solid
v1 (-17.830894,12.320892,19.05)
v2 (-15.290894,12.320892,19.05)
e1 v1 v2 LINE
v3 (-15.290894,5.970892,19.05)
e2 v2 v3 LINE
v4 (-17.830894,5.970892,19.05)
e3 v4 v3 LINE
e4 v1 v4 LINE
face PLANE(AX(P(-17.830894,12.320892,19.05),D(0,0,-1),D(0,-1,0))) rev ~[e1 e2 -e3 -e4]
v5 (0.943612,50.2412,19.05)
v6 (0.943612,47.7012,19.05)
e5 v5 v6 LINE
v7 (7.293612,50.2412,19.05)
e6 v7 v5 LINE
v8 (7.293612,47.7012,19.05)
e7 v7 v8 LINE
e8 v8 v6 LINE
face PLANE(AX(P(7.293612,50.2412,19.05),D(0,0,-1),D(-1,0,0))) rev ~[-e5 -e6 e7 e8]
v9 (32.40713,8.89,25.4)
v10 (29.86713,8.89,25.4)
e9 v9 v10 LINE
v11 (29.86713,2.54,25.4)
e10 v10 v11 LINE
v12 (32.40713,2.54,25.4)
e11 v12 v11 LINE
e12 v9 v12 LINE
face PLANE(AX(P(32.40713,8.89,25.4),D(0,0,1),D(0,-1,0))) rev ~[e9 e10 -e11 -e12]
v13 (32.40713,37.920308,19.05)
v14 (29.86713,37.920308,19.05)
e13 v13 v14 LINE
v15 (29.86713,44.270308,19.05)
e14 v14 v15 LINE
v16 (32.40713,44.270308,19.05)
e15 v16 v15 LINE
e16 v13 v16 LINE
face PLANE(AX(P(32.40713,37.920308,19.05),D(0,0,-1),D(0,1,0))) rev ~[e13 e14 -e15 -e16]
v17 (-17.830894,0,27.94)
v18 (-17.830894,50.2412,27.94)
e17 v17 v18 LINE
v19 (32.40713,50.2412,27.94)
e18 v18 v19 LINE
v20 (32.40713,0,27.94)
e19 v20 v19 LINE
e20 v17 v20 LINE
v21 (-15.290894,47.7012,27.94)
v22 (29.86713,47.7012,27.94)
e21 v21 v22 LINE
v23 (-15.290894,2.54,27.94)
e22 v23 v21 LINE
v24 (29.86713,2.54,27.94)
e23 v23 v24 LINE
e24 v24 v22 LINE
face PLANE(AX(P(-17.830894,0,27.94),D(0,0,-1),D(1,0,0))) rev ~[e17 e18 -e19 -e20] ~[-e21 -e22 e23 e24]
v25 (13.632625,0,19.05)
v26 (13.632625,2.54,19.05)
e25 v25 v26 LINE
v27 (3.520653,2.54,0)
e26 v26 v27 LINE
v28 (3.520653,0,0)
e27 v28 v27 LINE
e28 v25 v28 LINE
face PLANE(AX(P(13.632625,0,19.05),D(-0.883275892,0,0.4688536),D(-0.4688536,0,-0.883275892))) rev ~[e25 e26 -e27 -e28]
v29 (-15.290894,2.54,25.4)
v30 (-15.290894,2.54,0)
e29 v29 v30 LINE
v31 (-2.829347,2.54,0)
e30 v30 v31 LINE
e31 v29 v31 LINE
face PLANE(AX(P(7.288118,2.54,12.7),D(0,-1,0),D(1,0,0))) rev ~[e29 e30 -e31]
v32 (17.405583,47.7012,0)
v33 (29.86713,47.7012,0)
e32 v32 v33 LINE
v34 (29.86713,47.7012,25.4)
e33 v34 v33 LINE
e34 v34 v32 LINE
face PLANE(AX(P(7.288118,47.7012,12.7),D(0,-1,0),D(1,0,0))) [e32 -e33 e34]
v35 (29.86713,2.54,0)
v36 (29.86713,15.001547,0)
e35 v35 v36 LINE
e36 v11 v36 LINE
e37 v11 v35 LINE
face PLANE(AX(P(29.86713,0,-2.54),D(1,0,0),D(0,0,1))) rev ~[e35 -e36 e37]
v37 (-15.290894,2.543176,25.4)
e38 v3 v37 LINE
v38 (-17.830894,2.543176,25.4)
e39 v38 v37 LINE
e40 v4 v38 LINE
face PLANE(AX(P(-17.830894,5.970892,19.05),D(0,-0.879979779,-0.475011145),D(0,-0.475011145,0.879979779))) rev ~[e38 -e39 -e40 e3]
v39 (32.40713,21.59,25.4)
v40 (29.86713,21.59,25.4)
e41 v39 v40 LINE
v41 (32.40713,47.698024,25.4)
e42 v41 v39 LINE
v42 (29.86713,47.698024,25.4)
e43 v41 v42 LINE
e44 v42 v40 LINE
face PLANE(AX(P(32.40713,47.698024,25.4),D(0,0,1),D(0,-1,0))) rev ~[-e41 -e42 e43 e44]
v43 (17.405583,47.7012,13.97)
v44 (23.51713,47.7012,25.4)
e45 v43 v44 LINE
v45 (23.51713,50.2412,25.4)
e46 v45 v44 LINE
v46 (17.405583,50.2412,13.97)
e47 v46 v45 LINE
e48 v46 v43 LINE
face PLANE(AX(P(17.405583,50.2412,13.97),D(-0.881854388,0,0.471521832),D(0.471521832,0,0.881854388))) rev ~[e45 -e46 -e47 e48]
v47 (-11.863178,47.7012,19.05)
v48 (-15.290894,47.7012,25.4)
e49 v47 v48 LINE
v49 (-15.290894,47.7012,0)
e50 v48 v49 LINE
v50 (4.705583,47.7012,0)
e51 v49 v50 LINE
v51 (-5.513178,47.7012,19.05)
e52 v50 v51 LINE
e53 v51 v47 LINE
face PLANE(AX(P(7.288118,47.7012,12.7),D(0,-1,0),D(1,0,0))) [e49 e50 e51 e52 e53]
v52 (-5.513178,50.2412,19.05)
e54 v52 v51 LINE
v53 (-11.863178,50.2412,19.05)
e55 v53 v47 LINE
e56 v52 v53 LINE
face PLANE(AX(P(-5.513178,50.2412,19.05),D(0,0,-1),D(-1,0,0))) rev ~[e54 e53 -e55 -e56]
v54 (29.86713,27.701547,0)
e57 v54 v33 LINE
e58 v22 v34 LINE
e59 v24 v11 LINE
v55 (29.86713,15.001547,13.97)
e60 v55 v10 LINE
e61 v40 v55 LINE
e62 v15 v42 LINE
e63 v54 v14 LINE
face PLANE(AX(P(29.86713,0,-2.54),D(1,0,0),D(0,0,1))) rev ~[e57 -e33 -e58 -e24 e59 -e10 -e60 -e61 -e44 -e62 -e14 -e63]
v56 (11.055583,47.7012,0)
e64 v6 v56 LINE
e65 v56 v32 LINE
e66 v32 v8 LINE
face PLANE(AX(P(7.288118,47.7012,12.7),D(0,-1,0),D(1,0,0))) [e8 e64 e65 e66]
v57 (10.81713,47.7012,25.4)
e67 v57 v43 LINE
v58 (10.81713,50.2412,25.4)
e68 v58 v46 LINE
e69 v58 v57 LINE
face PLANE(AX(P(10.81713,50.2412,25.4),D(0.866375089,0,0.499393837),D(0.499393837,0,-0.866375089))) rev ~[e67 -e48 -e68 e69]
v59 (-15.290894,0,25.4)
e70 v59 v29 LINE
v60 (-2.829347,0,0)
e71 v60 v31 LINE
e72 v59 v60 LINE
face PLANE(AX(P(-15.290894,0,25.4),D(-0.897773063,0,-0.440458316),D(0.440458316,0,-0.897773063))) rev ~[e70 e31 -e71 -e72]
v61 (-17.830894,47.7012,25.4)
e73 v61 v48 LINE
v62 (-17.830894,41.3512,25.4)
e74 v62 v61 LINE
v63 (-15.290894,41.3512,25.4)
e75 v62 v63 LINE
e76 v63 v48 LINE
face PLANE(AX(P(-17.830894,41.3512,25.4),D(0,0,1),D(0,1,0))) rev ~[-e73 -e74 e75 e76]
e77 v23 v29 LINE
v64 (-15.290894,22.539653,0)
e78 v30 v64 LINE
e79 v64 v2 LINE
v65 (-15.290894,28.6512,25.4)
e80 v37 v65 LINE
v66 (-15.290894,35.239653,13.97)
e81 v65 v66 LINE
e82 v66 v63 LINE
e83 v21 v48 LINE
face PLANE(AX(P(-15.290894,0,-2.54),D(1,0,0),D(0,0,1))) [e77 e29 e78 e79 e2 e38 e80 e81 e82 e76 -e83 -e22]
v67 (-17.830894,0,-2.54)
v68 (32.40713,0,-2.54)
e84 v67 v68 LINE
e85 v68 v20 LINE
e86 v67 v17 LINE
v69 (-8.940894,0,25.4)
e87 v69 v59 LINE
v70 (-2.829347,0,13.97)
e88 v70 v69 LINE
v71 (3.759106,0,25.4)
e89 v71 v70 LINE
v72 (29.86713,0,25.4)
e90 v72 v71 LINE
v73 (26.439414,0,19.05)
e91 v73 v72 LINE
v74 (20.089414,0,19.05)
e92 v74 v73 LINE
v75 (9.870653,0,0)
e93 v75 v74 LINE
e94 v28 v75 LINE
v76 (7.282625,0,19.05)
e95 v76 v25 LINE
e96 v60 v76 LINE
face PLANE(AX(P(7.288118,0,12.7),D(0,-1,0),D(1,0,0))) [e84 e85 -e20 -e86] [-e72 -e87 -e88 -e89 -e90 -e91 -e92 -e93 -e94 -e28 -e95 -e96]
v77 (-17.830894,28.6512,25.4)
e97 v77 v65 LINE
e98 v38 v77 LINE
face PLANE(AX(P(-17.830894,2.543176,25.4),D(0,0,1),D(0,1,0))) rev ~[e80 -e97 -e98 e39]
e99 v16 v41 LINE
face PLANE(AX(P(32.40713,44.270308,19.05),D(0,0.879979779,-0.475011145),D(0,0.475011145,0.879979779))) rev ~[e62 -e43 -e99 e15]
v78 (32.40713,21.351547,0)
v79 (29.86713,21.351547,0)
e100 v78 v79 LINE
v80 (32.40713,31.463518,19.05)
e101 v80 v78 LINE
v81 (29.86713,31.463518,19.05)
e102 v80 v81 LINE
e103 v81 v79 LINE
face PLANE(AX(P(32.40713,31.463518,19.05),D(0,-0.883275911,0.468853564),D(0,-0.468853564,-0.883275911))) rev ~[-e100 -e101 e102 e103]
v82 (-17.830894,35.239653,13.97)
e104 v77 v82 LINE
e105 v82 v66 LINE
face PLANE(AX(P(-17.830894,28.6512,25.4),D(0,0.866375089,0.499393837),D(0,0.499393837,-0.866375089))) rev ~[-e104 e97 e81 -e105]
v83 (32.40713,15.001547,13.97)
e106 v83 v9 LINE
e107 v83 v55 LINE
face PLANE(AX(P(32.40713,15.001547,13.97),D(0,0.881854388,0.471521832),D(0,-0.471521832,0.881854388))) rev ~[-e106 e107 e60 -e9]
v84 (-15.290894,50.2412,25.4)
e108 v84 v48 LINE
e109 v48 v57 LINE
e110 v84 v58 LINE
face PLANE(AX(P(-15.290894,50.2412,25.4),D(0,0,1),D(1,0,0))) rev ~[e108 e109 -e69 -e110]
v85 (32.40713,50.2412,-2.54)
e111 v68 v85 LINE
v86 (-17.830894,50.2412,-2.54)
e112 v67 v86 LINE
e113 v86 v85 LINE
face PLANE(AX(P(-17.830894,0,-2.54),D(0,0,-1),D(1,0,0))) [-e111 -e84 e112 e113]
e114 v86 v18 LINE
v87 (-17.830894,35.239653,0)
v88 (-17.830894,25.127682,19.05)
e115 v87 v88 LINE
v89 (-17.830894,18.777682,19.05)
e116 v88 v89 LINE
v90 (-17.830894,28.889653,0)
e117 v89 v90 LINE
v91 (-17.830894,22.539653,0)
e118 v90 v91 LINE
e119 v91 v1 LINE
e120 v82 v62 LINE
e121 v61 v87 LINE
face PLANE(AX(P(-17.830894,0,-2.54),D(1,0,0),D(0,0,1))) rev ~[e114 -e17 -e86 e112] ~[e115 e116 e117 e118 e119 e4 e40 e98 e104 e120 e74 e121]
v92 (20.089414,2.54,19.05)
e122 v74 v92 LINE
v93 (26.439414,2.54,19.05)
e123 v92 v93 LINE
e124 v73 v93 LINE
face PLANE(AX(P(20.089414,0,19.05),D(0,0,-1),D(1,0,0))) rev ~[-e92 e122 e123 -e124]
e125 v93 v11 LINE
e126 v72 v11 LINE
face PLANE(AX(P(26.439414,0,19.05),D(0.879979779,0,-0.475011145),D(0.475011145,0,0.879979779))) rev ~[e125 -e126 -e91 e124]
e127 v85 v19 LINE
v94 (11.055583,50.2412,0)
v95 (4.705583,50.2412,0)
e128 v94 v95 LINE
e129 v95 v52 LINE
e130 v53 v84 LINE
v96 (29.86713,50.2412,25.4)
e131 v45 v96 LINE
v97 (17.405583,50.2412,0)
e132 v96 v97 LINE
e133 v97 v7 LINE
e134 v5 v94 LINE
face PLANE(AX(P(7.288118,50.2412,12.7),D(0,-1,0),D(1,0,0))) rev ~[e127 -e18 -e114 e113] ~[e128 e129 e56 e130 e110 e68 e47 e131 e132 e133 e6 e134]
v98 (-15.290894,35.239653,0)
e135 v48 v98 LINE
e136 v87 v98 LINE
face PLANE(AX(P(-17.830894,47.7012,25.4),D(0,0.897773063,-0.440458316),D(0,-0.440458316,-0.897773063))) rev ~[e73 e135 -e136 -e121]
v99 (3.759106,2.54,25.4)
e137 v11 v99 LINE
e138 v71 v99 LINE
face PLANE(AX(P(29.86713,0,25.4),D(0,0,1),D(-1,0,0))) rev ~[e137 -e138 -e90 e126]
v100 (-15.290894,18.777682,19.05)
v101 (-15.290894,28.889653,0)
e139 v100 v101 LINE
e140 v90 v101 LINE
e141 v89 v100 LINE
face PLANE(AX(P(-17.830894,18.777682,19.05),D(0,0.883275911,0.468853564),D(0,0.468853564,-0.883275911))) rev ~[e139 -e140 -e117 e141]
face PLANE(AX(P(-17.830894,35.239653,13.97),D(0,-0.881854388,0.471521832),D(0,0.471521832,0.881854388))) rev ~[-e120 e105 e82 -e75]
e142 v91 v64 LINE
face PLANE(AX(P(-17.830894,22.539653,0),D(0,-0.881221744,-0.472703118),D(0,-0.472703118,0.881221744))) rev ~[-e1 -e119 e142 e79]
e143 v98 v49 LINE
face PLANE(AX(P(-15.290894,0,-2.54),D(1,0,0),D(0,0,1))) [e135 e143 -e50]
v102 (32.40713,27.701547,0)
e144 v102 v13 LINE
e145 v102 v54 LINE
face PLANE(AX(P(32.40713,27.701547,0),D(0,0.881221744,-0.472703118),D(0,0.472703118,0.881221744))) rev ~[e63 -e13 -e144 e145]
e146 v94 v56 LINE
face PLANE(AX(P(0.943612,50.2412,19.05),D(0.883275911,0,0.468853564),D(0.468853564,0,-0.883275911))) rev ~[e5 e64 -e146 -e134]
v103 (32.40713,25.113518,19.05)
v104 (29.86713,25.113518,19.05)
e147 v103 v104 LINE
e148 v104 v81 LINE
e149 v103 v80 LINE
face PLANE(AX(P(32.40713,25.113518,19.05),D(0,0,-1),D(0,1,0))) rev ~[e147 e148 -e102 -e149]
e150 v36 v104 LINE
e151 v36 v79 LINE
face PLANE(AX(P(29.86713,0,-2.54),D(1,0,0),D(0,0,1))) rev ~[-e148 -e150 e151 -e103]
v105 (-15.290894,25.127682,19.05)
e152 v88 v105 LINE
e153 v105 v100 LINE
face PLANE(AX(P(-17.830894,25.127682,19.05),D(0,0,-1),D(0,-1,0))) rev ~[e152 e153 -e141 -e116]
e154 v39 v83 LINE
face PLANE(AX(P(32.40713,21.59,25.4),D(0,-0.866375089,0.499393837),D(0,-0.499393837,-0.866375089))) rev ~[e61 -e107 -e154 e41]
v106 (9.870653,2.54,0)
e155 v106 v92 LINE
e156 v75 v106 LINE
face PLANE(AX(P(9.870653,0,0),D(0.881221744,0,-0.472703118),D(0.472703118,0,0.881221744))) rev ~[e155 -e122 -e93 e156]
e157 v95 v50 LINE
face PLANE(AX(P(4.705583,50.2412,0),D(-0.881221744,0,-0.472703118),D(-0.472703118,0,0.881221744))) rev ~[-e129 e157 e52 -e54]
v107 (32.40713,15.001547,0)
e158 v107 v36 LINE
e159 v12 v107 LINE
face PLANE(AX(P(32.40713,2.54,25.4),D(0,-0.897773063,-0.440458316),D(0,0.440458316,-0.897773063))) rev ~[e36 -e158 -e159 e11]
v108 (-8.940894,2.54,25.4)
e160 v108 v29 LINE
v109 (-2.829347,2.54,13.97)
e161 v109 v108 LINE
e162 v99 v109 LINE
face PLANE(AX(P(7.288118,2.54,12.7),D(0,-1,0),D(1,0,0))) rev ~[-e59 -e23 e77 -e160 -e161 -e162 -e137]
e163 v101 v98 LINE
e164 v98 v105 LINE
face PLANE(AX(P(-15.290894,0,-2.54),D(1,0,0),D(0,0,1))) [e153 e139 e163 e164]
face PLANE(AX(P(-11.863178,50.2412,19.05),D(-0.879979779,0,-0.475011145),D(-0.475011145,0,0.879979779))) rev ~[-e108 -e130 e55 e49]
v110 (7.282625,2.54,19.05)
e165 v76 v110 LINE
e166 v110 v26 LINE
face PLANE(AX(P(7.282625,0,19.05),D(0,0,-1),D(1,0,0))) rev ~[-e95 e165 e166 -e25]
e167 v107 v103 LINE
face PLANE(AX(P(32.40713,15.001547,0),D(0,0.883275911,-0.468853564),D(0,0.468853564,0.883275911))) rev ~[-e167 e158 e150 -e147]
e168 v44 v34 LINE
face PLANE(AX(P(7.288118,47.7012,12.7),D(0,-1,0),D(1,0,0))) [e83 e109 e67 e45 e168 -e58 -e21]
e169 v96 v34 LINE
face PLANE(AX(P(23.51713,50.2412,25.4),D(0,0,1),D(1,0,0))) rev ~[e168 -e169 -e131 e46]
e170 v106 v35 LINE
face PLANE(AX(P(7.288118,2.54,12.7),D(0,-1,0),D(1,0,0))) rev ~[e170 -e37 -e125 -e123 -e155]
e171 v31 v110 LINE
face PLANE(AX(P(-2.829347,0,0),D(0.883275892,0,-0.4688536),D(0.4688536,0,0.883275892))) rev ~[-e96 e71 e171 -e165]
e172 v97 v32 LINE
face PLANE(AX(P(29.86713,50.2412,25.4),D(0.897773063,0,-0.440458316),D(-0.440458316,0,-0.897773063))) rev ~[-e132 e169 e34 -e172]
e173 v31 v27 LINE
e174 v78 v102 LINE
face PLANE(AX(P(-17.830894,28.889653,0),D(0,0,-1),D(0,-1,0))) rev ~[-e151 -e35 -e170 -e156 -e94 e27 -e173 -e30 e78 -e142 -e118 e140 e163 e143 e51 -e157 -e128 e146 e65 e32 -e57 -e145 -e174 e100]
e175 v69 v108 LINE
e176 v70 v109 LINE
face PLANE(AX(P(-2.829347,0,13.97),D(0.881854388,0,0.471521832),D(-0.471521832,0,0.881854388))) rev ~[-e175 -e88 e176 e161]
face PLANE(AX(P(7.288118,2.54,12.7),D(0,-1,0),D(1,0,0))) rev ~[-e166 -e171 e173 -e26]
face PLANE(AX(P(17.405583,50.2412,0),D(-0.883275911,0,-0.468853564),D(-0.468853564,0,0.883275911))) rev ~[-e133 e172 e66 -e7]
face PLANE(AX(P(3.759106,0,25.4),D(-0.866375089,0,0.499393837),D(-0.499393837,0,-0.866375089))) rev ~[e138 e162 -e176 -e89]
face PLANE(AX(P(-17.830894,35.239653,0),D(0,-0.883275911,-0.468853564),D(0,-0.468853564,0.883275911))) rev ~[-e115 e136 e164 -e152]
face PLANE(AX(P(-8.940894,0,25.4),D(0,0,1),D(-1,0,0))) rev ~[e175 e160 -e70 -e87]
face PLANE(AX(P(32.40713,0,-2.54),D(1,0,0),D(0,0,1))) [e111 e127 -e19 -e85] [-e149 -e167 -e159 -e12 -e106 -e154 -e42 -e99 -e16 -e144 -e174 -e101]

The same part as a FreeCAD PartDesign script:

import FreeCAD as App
import Part
import Sketcher
Q = App.Units.Quantity


def faces_at(feature, points):
    """Names of the faces that lie closest to the given points."""
    faces = feature.Shape.Faces
    near = lambda p: min(range(len(faces)), key=lambda i: faces[i].distToShape(Part.Vertex(*p))[0])
    return sorted({f"Face{near(p) + 1}" for p in points})


def add_polygon(sketch, points):
    """Adds a closed chain of lines whose ends are joined by coincident constraints."""
    first, n = sketch.GeometryCount, len(points)
    for a, b in zip(points, points[1:] + points[:1]):
        sketch.addGeometry(Part.LineSegment(App.Vector(*a, 0), App.Vector(*b, 0)), False)
    for i in range(n):
        sketch.addConstraint(Sketcher.Constraint("Coincident", first + i, 2, first + (i + 1) % n, 1))

doc = App.newDocument("Part")
body = doc.addObject("PartDesign::Body", "Body")

# Sketch on XZ plane
sketch1 = body.newObject("Sketcher::SketchObject", "Sketch")
sketch1.AttachmentSupport = (doc.getObject("XZ_Plane"), [""])
sketch1.MapMode = "FlatFace"
add_polygon(sketch1, [(-17.830894, 27.94), (-17.830894, -2.54), (32.40713, -2.54), (32.40713, 27.94)])  # lines 0-3
sketch1.addConstraint([
    Sketcher.Constraint("Vertical", 0),
    Sketcher.Constraint("Horizontal", 1),
    Sketcher.Constraint("Vertical", 2),
    Sketcher.Constraint("Horizontal", 3),
    Sketcher.Constraint("DistanceY", 0, 2, 0, 1, Q("1.2 in")),
    Sketcher.Constraint("DistanceY", 0, 2, -1, 1, Q("0.1 in")),
    Sketcher.Constraint("DistanceX", 1, 1, 1, 2, Q("50.238024 mm")),
    Sketcher.Constraint("DistanceX", -1, 1, 1, 2, Q("32.40713 mm")),
])
pad1 = body.newObject("PartDesign::Pad", "Pad")
pad1.Profile = sketch1
pad1.Length = Q("1.978 in")
pad1.Reversed = True
doc.recompute()

thickness = body.newObject("PartDesign::Thickness", "Thickness")
thickness.Base = (pad1, faces_at(pad1, [(7.288, 25.121, 27.94)]))
thickness.Value = Q("0.1 in")
thickness.Reversed = True
thickness.Join = "Arc"

# Sketch on XZ plane
sketch2 = body.newObject("Sketcher::SketchObject", "Sketch001")
sketch2.AttachmentSupport = (doc.getObject("XZ_Plane"), [""])
sketch2.MapMode = "FlatFace"
add_polygon(sketch2, [(-8.940894, 25.4), (-15.290894, 25.4), (-2.829347, 0), (7.282625, 19.05), (13.632625, 19.05), (3.520653, 0), (9.870653, 0), (20.089414, 19.05), (26.439414, 19.05), (29.86713, 25.4), (3.759106, 25.4), (-2.829347, 13.97)])  # lines 0-11
sketch2.addConstraint([
    Sketcher.Constraint("Horizontal", 0),
    Sketcher.Constraint("Horizontal", 3),
    Sketcher.Constraint("Horizontal", 5),
    Sketcher.Constraint("Horizontal", 7),
    Sketcher.Constraint("Horizontal", 9),
    Sketcher.Constraint("PointOnObject", 1, 2, -1),
    Sketcher.Constraint("PointOnObject", 4, 2, -1),
    Sketcher.Constraint("Parallel", 2, 4),
    Sketcher.Constraint("Horizontal", 3, 2, 6, 2),
    Sketcher.Constraint("Horizontal", 0, 2, 8, 2),
    Sketcher.Constraint("Vertical", 1, 2, 10, 2),
    Sketcher.Constraint("Equal", 0, 3),
    Sketcher.Constraint("Equal", 3, 5),
    Sketcher.Constraint("Equal", 5, 7),
    Sketcher.Constraint("DistanceY", -1, 1, 0, 2, Q("1 in")),
    Sketcher.Constraint("DistanceX", 0, 2, 0, 1, Q("0.25 in")),
    Sketcher.Constraint("DistanceY", 10, 2, 2, 2, Q("0.2 in")),
    Sketcher.Constraint("DistanceX", 11, 2, 9, 2, Q("0.5 in")),
    Sketcher.Constraint("DistanceY", -1, 1, 2, 2, Q("0.75 in")),
    Sketcher.Constraint("Distance", 10, Q("13.1929 mm")),
    Sketcher.Constraint("Distance", 2, Q("21.56744 mm")),
    Sketcher.Constraint("DistanceX", 9, 2, 9, 1, Q("26.108024 mm")),
    Sketcher.Constraint("DistanceX", -1, 1, 8, 2, Q("29.86713 mm")),
    Sketcher.Constraint("DistanceX", 3, 2, 6, 2, Q("6.456789 mm")),
])
pocket1 = body.newObject("PartDesign::Pocket", "Pocket")
pocket1.Profile = sketch2
pocket1.Length = Q("0.1 in")

# Sketch on YZ plane
sketch3 = body.newObject("Sketcher::SketchObject", "Sketch002")
sketch3.AttachmentSupport = (doc.getObject("YZ_Plane"), [""])
sketch3.MapMode = "FlatFace"
sketch3.AttachmentOffset = App.Placement(App.Vector(0, 0, -17.830894), App.Rotation())
add_polygon(sketch3, [(41.3512, 25.4), (47.7012, 25.4), (35.239653, 0), (25.127682, 19.05), (18.777682, 19.05), (28.889653, 0), (22.539653, 0), (12.320892, 19.05), (5.970892, 19.05), (2.543176, 25.4), (28.6512, 25.4), (35.239653, 13.97)])  # lines 0-11
sketch3.addConstraint([
    Sketcher.Constraint("Horizontal", 0),
    Sketcher.Constraint("Horizontal", 3),
    Sketcher.Constraint("Horizontal", 5),
    Sketcher.Constraint("Horizontal", 7),
    Sketcher.Constraint("Horizontal", 9),
    Sketcher.Constraint("PointOnObject", 1, 2, -1),
    Sketcher.Constraint("PointOnObject", 4, 2, -1),
    Sketcher.Constraint("Parallel", 2, 4),
    Sketcher.Constraint("Horizontal", 3, 2, 6, 2),
    Sketcher.Constraint("Horizontal", 0, 2, 8, 2),
    Sketcher.Constraint("Vertical", 1, 2, 10, 2),
    Sketcher.Constraint("Equal", 0, 3),
    Sketcher.Constraint("Equal", 3, 5),
    Sketcher.Constraint("Equal", 5, 7),
    Sketcher.Constraint("DistanceY", -1, 1, 0, 2, Q("1 in")),
    Sketcher.Constraint("DistanceX", 0, 1, 0, 2, Q("0.25 in")),
    Sketcher.Constraint("DistanceY", 10, 2, 2, 2, Q("0.2 in")),
    Sketcher.Constraint("DistanceX", 9, 2, 11, 2, Q("0.5 in")),
    Sketcher.Constraint("DistanceY", -1, 1, 2, 2, Q("0.75 in")),
    Sketcher.Constraint("DistanceX", -1, 1, 0, 2, Q("1.878 in")),
    Sketcher.Constraint("Distance", 10, Q("13.1929 mm")),
    Sketcher.Constraint("Distance", 2, Q("21.56744 mm")),
    Sketcher.Constraint("DistanceX", 9, 1, 9, 2, Q("26.108024 mm")),
    Sketcher.Constraint("DistanceX", 6, 2, 3, 2, Q("6.45679 mm")),
])
pocket2 = body.newObject("PartDesign::Pocket", "Pocket001")
pocket2.Profile = sketch3
pocket2.Length = Q("0.1 in")
pocket2.Reversed = True

# Sketch on XZ plane
sketch4 = body.newObject("Sketcher::SketchObject", "Sketch003")
sketch4.AttachmentSupport = (doc.getObject("XZ_Plane"), [""])
sketch4.MapMode = "FlatFace"
sketch4.AttachmentOffset = App.Placement(App.Vector(0, 0, -1.978 * 25.4), App.Rotation())
add_polygon(sketch4, [(23.51713, 25.4), (29.86713, 25.4), (17.405583, 0), (7.293612, 19.05), (0.943612, 19.05), (11.055583, 0), (4.705583, 0), (-5.513178, 19.05), (-11.863178, 19.05), (-15.290894, 25.4), (10.81713, 25.4), (17.405583, 13.97)])  # lines 0-11
sketch4.addConstraint([
    Sketcher.Constraint("Horizontal", 0),
    Sketcher.Constraint("Horizontal", 3),
    Sketcher.Constraint("Horizontal", 5),
    Sketcher.Constraint("Horizontal", 7),
    Sketcher.Constraint("Horizontal", 9),
    Sketcher.Constraint("PointOnObject", 1, 2, -1),
    Sketcher.Constraint("PointOnObject", 4, 2, -1),
    Sketcher.Constraint("Parallel", 2, 4),
    Sketcher.Constraint("Horizontal", 3, 2, 6, 2),
    Sketcher.Constraint("Horizontal", 0, 2, 8, 2),
    Sketcher.Constraint("Vertical", 1, 2, 10, 2),
    Sketcher.Constraint("Equal", 0, 3),
    Sketcher.Constraint("Equal", 3, 5),
    Sketcher.Constraint("Equal", 5, 7),
    Sketcher.Constraint("DistanceY", -1, 1, 0, 2, Q("1 in")),
    Sketcher.Constraint("DistanceX", 0, 1, 0, 2, Q("0.25 in")),
    Sketcher.Constraint("DistanceY", 10, 2, 2, 2, Q("0.2 in")),
    Sketcher.Constraint("DistanceX", 9, 2, 11, 2, Q("0.5 in")),
    Sketcher.Constraint("DistanceY", -1, 1, 2, 2, Q("0.75 in")),
    Sketcher.Constraint("Distance", 10, Q("13.1929 mm")),
    Sketcher.Constraint("Distance", 2, Q("21.56744 mm")),
    Sketcher.Constraint("DistanceX", 9, 1, 9, 2, Q("26.108024 mm")),
    Sketcher.Constraint("DistanceX", -1, 1, 0, 2, Q("29.86713 mm")),
    Sketcher.Constraint("DistanceX", 6, 2, 3, 2, Q("6.45679 mm")),
])
pocket3 = body.newObject("PartDesign::Pocket", "Pocket002")
pocket3.Profile = sketch4
pocket3.Length = Q("0.1 in")
pocket3.Reversed = True

# Sketch on YZ plane
sketch5 = body.newObject("Sketcher::SketchObject", "Sketch004")
sketch5.AttachmentSupport = (doc.getObject("YZ_Plane"), [""])
sketch5.MapMode = "FlatFace"
sketch5.AttachmentOffset = App.Placement(App.Vector(0, 0, 32.40713), App.Rotation())
add_polygon(sketch5, [(8.89, 25.4), (2.54, 25.4), (15.001547, 0), (25.113518, 19.05), (31.463518, 19.05), (21.351547, 0), (27.701547, 0), (37.920308, 19.05), (44.270308, 19.05), (47.698024, 25.4), (21.59, 25.4), (15.001547, 13.97)])  # lines 0-11
sketch5.addConstraint([
    Sketcher.Constraint("Horizontal", 0),
    Sketcher.Constraint("Horizontal", 3),
    Sketcher.Constraint("Horizontal", 5),
    Sketcher.Constraint("Horizontal", 7),
    Sketcher.Constraint("Horizontal", 9),
    Sketcher.Constraint("PointOnObject", 1, 2, -1),
    Sketcher.Constraint("PointOnObject", 4, 2, -1),
    Sketcher.Constraint("Parallel", 2, 4),
    Sketcher.Constraint("Horizontal", 3, 2, 6, 2),
    Sketcher.Constraint("Horizontal", 0, 2, 8, 2),
    Sketcher.Constraint("Vertical", 1, 2, 10, 2),
    Sketcher.Constraint("Equal", 0, 3),
    Sketcher.Constraint("Equal", 3, 5),
    Sketcher.Constraint("Equal", 5, 7),
    Sketcher.Constraint("DistanceY", -1, 1, 0, 2, Q("1 in")),
    Sketcher.Constraint("DistanceX", 0, 2, 0, 1, Q("0.25 in")),
    Sketcher.Constraint("DistanceX", -1, 1, 0, 2, Q("0.1 in")),
    Sketcher.Constraint("DistanceY", 10, 2, 2, 2, Q("0.2 in")),
    Sketcher.Constraint("DistanceX", 11, 2, 9, 2, Q("0.5 in")),
    Sketcher.Constraint("DistanceY", -1, 1, 2, 2, Q("0.75 in")),
    Sketcher.Constraint("Distance", 10, Q("13.1929 mm")),
    Sketcher.Constraint("Distance", 2, Q("21.56744 mm")),
    Sketcher.Constraint("DistanceX", 9, 2, 9, 1, Q("26.108024 mm")),
    Sketcher.Constraint("DistanceX", 3, 2, 6, 2, Q("6.45679 mm")),
])
pocket4 = body.newObject("PartDesign::Pocket", "Pocket003")
pocket4.Profile = sketch5
pocket4.Length = Q("0.1 in")

doc.recompute()
